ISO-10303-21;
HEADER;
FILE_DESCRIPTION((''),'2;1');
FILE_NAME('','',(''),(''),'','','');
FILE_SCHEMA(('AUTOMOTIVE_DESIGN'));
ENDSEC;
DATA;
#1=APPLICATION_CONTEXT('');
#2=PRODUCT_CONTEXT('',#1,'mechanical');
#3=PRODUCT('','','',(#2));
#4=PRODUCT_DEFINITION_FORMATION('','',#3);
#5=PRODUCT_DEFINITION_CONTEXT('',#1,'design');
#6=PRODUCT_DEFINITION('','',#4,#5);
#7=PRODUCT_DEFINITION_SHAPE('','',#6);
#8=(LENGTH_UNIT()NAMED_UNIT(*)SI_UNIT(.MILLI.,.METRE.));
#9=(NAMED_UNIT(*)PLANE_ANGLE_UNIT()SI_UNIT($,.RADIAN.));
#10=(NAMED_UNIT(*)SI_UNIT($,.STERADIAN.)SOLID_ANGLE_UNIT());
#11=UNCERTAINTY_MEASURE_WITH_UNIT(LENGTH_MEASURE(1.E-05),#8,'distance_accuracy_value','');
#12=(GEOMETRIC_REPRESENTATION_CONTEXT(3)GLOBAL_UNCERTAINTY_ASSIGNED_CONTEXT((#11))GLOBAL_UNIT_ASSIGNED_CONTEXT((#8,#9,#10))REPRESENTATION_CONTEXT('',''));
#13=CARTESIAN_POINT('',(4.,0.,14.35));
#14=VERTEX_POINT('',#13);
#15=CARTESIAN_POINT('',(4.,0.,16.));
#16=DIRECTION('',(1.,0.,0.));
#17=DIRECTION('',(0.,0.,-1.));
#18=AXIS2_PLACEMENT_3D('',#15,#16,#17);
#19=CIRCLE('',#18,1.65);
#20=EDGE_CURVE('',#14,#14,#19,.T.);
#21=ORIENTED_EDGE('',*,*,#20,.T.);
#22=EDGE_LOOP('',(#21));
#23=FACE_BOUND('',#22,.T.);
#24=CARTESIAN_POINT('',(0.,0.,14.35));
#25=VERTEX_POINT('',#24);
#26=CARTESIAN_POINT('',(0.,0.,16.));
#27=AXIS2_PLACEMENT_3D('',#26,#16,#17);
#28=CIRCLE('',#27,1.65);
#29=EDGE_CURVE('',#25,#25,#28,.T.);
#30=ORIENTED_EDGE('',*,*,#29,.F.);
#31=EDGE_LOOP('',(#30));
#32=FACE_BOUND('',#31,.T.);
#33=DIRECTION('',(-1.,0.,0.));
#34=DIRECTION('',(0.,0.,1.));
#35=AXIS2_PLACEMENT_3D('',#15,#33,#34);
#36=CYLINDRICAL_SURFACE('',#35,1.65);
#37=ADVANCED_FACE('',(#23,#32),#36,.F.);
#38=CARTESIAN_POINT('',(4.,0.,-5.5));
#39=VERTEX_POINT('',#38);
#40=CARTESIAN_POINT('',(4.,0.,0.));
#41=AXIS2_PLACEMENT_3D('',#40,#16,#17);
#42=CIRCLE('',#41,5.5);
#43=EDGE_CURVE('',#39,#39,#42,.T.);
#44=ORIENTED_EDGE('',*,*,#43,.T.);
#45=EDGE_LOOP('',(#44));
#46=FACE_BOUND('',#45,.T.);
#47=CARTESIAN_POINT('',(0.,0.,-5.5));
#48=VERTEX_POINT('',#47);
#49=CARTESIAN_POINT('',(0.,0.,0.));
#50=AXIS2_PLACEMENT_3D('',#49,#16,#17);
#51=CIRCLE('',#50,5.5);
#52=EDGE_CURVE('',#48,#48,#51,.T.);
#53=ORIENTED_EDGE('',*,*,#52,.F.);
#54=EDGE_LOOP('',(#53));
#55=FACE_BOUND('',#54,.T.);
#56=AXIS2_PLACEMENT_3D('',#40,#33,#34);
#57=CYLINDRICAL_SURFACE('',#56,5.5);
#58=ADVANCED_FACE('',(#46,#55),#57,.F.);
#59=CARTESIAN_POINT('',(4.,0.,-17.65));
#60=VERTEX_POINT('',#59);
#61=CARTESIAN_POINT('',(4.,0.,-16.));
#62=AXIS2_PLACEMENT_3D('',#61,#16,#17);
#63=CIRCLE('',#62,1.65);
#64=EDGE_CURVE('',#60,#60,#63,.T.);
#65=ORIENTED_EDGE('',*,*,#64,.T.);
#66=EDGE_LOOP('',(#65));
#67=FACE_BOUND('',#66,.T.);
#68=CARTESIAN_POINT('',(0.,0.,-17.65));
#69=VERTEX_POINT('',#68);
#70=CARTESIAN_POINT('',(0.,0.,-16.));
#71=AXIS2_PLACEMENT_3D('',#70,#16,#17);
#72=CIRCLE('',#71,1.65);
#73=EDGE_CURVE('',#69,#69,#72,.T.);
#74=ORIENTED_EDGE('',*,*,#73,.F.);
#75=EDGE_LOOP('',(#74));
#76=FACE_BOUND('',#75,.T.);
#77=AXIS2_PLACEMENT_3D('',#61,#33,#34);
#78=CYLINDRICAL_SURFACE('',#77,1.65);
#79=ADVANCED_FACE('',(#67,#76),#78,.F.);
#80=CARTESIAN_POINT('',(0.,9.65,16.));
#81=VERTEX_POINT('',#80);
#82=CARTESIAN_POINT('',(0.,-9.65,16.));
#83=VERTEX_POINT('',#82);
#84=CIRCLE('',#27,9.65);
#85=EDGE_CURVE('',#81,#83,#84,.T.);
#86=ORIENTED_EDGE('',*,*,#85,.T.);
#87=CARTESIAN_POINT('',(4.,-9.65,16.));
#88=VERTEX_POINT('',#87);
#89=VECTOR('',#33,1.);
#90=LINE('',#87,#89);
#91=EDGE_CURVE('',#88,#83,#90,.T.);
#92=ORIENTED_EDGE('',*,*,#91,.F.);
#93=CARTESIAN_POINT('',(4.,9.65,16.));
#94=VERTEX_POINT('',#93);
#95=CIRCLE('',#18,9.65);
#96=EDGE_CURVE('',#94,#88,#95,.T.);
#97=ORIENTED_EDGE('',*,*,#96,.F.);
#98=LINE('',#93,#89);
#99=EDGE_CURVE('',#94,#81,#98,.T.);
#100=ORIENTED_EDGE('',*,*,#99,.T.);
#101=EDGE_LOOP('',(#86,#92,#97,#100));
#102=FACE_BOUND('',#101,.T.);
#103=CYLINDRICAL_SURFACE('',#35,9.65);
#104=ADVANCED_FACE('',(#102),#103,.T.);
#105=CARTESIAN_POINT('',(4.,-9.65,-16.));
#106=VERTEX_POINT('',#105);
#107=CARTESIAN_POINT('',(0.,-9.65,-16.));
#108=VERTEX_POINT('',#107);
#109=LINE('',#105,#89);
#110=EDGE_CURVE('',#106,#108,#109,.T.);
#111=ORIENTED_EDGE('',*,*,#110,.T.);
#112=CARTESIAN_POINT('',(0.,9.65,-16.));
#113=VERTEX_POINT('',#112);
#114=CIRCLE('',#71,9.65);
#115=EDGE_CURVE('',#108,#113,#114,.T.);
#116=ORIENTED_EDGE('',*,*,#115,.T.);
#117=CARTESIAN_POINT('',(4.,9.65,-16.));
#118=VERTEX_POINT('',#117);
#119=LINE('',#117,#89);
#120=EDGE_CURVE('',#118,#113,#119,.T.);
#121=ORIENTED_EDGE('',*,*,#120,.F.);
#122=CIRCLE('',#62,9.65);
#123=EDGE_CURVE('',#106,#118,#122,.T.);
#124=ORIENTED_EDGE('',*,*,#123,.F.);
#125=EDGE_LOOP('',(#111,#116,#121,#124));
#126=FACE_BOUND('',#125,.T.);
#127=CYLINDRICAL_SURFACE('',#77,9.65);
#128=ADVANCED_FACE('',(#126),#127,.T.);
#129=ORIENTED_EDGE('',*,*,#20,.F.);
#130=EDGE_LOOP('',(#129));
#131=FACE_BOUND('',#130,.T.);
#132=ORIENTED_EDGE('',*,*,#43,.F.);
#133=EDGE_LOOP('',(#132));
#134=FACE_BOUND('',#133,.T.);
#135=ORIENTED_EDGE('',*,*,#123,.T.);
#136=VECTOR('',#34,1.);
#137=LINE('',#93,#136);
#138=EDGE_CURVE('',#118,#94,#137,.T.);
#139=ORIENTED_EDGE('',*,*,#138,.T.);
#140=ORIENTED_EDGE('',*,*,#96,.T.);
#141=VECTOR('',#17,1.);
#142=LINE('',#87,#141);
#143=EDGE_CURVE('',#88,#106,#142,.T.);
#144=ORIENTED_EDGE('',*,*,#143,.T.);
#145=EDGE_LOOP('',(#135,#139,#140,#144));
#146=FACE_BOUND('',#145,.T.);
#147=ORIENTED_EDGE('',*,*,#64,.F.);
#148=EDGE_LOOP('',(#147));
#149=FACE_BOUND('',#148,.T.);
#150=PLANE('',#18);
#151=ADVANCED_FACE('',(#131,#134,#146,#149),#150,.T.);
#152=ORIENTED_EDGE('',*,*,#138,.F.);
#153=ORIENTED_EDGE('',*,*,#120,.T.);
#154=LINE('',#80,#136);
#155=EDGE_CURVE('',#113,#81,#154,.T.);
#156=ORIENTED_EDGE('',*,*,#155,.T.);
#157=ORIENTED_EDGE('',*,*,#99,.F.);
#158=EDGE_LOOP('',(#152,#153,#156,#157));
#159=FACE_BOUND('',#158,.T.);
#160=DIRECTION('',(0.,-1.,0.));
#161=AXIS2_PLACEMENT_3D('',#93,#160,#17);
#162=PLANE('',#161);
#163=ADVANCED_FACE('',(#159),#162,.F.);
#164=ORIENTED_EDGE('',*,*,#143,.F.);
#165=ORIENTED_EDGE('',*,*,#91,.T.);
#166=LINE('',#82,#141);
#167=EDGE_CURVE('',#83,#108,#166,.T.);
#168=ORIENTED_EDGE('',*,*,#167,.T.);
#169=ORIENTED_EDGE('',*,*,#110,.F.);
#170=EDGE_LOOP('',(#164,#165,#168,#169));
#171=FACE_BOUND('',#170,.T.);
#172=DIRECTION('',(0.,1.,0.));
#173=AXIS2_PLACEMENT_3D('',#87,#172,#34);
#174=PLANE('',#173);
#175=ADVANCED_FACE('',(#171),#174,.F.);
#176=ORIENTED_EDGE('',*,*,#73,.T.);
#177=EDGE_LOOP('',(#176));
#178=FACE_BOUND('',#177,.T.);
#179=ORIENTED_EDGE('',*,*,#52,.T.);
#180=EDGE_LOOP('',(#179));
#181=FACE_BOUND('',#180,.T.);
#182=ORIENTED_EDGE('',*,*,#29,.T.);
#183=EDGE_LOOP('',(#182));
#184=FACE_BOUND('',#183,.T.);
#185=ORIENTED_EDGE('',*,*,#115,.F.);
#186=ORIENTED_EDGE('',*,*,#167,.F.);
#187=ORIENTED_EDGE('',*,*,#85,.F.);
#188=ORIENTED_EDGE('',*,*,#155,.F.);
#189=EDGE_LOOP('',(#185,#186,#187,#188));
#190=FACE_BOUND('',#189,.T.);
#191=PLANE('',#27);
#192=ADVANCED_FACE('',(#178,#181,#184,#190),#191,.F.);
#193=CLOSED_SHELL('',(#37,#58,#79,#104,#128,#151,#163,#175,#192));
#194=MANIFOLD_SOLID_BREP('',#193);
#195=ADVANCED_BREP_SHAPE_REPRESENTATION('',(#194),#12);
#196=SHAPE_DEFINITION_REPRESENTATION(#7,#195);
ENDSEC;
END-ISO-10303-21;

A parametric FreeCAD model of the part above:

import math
import FreeCAD as App
import Part
import Sketcher
from FreeCAD import Vector
Q = App.Units.Quantity

doc = App.newDocument("Part")
params = doc.addObject("Spreadsheet::Sheet", "Params")
for row, (alias, value) in enumerate([
    ("sketch1_diameter", "11 mm"),
    ("sketch1_diameter2", "3.3 mm"),
    ("sketch1_height", "32 mm"),
    ("sketch1_radius", "9.65 mm"),
    ("pad1_length", "4 mm"),
], start=1):
    params.set(f"A{row}", alias)
    params.set(f"B{row}", "=" + value)
    params.setAlias(f"B{row}", alias)

body = doc.addObject("PartDesign::Body", "Body")

# Sketch on YZ plane
sketch1 = doc.addObject("Sketcher::SketchObject", "Sketch")
body.addObject(sketch1)
sketch1.AttachmentSupport = (doc.YZ_Plane, [""])
sketch1.MapMode = "FlatFace"
sketch1.addGeometry(Part.LineSegment(Vector(9.7, -16, 0), Vector(9.7, 16, 0)), False)
sketch1.addGeometry(Part.ArcOfCircle(Part.Circle(Vector(0, 16, 0), Vector(0, 0, 1), 9.7), math.radians(0), math.radians(180)), False)
sketch1.addGeometry(Part.LineSegment(Vector(-9.7, 16, 0), Vector(-9.7, -16, 0)), False)
sketch1.addGeometry(Part.ArcOfCircle(Part.Circle(Vector(0, -16, 0), Vector(0, 0, 1), 9.7), math.radians(180), math.radians(360)), False)
sketch1.addGeometry(Part.Circle(Vector(0, -16, 0), Vector(0, 0, 1), 1.6), False)
sketch1.addGeometry(Part.Circle(Vector(0, 0, 0), Vector(0, 0, 1), 5.5), False)
sketch1.addGeometry(Part.Circle(Vector(0, 16, 0), Vector(0, 0, 1), 1.6), False)
sketch1.addConstraint(Sketcher.Constraint("Tangent", 0, 2, 1, 1))
sketch1.addConstraint(Sketcher.Constraint("Tangent", 1, 2, 2, 1))
sketch1.addConstraint(Sketcher.Constraint("Tangent", 2, 2, 3, 1))
sketch1.addConstraint(Sketcher.Constraint("Tangent", 3, 2, 0, 1))
sketch1.addConstraint(Sketcher.Constraint("Vertical", 0))
sketch1.addConstraint(Sketcher.Constraint("Vertical", 2))
sketch1.addConstraint(Sketcher.Constraint("Coincident", 5, 3, -1, 1))
sketch1.addConstraint(Sketcher.Constraint("Coincident", 4, 3, 3, 3))
sketch1.addConstraint(Sketcher.Constraint("Coincident", 6, 3, 1, 3))
sketch1.addConstraint(Sketcher.Constraint("Equal", 4, 6))
sketch1.addConstraint(Sketcher.Constraint("Symmetric", 1, 3, 3, 3, -1, 1))
sketch1.addConstraint(Sketcher.Constraint("Diameter", 5, Q("11 mm")))
sketch1.addConstraint(Sketcher.Constraint("Diameter", 4, Q("3.3 mm")))
sketch1.addConstraint(Sketcher.Constraint("DistanceY", 0, 1, 0, 2, Q("32 mm")))
sketch1.addConstraint(Sketcher.Constraint("Radius", 1, Q("9.65 mm")))
sketch1.setExpression("Constraints[11]", "Params.sketch1_diameter")
sketch1.setExpression("Constraints[12]", "Params.sketch1_diameter2")
sketch1.setExpression("Constraints[13]", "Params.sketch1_height")
sketch1.setExpression("Constraints[14]", "Params.sketch1_radius")
pad1 = doc.addObject("PartDesign::Pad", "Pad")
body.addObject(pad1)
pad1.Profile = sketch1
pad1.setExpression("Length", "Params.pad1_length")

doc.recompute()
